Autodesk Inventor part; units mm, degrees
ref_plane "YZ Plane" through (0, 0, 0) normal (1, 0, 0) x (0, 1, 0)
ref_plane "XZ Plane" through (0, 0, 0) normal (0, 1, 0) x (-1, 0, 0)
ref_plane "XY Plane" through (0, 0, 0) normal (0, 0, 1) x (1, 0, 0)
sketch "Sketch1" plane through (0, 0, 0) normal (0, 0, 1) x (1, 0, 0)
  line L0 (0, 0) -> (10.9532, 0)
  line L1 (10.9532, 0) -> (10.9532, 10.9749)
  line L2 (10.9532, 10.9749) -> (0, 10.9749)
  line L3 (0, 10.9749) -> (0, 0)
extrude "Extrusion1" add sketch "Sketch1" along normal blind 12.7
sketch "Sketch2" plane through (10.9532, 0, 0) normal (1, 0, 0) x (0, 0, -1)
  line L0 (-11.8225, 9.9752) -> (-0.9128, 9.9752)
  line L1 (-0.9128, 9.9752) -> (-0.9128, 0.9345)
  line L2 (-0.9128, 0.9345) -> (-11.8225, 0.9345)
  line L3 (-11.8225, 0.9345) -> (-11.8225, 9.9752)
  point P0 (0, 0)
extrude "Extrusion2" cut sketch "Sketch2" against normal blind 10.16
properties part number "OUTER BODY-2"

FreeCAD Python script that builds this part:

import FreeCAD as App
import Part
import Sketcher

V = App.Vector
Q = App.Units.Quantity


def add_polygon(sketch, points):
    """Adds a closed chain of lines whose ends are joined by coincident constraints."""
    first, n = sketch.GeometryCount, len(points)
    for a, b in zip(points, points[1:] + points[:1]):
        sketch.addGeometry(Part.LineSegment(App.Vector(*a, 0), App.Vector(*b, 0)), False)
    for i in range(n):
        sketch.addConstraint(Sketcher.Constraint("Coincident", first + i, 2, first + (i + 1) % n, 1))

doc = App.newDocument("Part")
body = doc.addObject("PartDesign::Body", "Body")

# Sketch on XY plane
sketch1 = body.newObject("Sketcher::SketchObject", "Sketch")
sketch1.AttachmentSupport = (doc.getObject("XY_Plane"), [""])
sketch1.MapMode = "FlatFace"
add_polygon(sketch1, [(0, 11), (0, 0), (11, 0), (11, 11)])  # lines 0-3
sketch1.addConstraint(Sketcher.Constraint("Vertical", 0))
sketch1.addConstraint(Sketcher.Constraint("Horizontal", 1))
sketch1.addConstraint(Sketcher.Constraint("Vertical", 2))
sketch1.addConstraint(Sketcher.Constraint("Horizontal", 3))
sketch1.addConstraint(Sketcher.Constraint("Coincident", 0, 2, -1, 1))
sketch1.addConstraint(Sketcher.Constraint("DistanceX", 1, 1, 1, 2, Q("10.9532 mm")))
sketch1.addConstraint(Sketcher.Constraint("DistanceY", 0, 2, 0, 1, Q("10.975 mm")))
pad1 = body.newObject("PartDesign::Pad", "Pad")
pad1.Profile = sketch1
pad1.Length = Q("0.5 in")

# Sketch on YZ plane
sketch2 = body.newObject("Sketcher::SketchObject", "Sketch001")
sketch2.AttachmentSupport = (doc.getObject("YZ_Plane"), [""])
sketch2.MapMode = "FlatFace"
sketch2.AttachmentOffset = App.Placement(V(0, 0, 10.9532), App.Rotation())
add_polygon(sketch2, [(10, 1), (10, 12), (1, 12), (1, 1)])  # lines 0-3
sketch2.addConstraint(Sketcher.Constraint("Vertical", 0))
sketch2.addConstraint(Sketcher.Constraint("Horizontal", 1))
sketch2.addConstraint(Sketcher.Constraint("Vertical", 2))
sketch2.addConstraint(Sketcher.Constraint("Horizontal", 3))
sketch2.addConstraint(Sketcher.Constraint("DistanceX", 1, 2, 1, 1, Q("9.0407 mm")))
sketch2.addConstraint(Sketcher.Constraint("DistanceY", 0, 1, 0, 2, Q("10.9097 mm")))
sketch2.addConstraint(Sketcher.Constraint("DistanceX", -1, 1, 1, 2, Q("0.0368 in")))
sketch2.addConstraint(Sketcher.Constraint("DistanceY", -1, 1, 0, 2, Q("11.8225 mm")))
pocket1 = body.newObject("PartDesign::Pocket", "Pocket")
pocket1.Profile = sketch2
pocket1.Length = Q("0.4 in")

doc.recompute()
